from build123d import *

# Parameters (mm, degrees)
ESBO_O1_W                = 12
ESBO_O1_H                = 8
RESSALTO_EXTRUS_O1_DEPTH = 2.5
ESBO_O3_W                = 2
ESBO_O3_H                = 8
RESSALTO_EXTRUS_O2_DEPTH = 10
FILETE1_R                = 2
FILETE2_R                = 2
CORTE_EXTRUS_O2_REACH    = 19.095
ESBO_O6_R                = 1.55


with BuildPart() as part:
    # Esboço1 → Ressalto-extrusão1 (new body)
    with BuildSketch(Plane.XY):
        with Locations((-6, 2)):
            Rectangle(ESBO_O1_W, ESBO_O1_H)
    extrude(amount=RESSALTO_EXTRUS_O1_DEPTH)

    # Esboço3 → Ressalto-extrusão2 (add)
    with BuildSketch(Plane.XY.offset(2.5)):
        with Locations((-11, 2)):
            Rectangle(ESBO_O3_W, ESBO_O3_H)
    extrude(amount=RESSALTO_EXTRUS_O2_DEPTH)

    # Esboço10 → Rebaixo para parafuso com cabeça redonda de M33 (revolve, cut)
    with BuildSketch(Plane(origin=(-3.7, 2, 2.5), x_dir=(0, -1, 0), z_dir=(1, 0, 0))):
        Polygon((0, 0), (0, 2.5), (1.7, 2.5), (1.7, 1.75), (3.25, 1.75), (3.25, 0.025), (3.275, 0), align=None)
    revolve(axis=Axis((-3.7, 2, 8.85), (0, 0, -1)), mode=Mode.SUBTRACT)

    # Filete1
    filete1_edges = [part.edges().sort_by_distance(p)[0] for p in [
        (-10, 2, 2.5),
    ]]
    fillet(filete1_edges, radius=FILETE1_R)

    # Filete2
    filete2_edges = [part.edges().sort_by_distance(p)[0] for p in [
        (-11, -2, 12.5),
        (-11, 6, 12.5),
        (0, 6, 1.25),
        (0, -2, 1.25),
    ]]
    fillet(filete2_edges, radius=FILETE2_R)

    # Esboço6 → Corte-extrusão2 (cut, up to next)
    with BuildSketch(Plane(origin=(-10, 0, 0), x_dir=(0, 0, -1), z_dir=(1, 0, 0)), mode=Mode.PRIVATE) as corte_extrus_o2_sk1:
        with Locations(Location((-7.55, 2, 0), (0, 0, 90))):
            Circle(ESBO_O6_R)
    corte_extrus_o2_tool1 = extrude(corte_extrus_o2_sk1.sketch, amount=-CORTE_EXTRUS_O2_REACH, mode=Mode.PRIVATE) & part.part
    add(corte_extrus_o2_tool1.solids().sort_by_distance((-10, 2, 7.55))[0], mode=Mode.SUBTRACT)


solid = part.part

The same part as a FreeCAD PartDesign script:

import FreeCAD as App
import Part
import Sketcher
Q = App.Units.Quantity


def edges_at(feature, points):
    """Names of the edges that pass closest to the given points."""
    edges = feature.Shape.Edges
    near = lambda p: min(range(len(edges)), key=lambda i: edges[i].distToShape(Part.Vertex(*p))[0])
    return sorted({f"Edge{near(p) + 1}" for p in points})

doc = App.newDocument("Part")
body = doc.addObject("PartDesign::Body", "Body")

# Sketch on XY plane
sketch1 = body.newObject("Sketcher::SketchObject", "Sketch")
sketch1.AttachmentSupport = (doc.getObject("XY_Plane"), [""])
sketch1.MapMode = "FlatFace"
sketch1.addGeometry(Part.LineSegment(App.Vector(-12, 6, 0), App.Vector(-12, -2, 0)), False)
sketch1.addGeometry(Part.LineSegment(App.Vector(-12, -2, 0), App.Vector(0, -2, 0)), False)
sketch1.addGeometry(Part.LineSegment(App.Vector(0, -2, 0), App.Vector(0, 6, 0)), False)
sketch1.addGeometry(Part.LineSegment(App.Vector(0, 6, 0), App.Vector(-12, 6, 0)), False)
sketch1.addConstraint(Sketcher.Constraint("Coincident", 0, 2, 1, 1))
sketch1.addConstraint(Sketcher.Constraint("Coincident", 1, 2, 2, 1))
sketch1.addConstraint(Sketcher.Constraint("Coincident", 2, 2, 3, 1))
sketch1.addConstraint(Sketcher.Constraint("Coincident", 3, 2, 0, 1))
sketch1.addConstraint(Sketcher.Constraint("Vertical", 0))
sketch1.addConstraint(Sketcher.Constraint("Horizontal", 1))
sketch1.addConstraint(Sketcher.Constraint("Vertical", 2))
sketch1.addConstraint(Sketcher.Constraint("Horizontal", 3))
sketch1.addConstraint(Sketcher.Constraint("PointOnObject", 1, 2, -2))
sketch1.addConstraint(Sketcher.Constraint("DistanceX", 1, 1, 1, 2, Q("12 mm")))
sketch1.addConstraint(Sketcher.Constraint("DistanceY", 0, 2, 0, 1, Q("8 mm")))
sketch1.addConstraint(Sketcher.Constraint("DistanceY", 0, 2, -1, 1, Q("2 mm")))
pad1 = body.newObject("PartDesign::Pad", "Pad")
pad1.Profile = sketch1
pad1.Length = 2.5

# Sketch on XY plane
sketch2 = body.newObject("Sketcher::SketchObject", "Sketch001")
sketch2.AttachmentSupport = (doc.getObject("XY_Plane"), [""])
sketch2.MapMode = "FlatFace"
sketch2.AttachmentOffset = App.Placement(App.Vector(0, 0, 2.5), App.Rotation())
sketch2.addGeometry(Part.LineSegment(App.Vector(-12, 6, 0), App.Vector(-12, -2, 0)), False)
sketch2.addGeometry(Part.LineSegment(App.Vector(-12, -2, 0), App.Vector(-10, -2, 0)), False)
sketch2.addGeometry(Part.LineSegment(App.Vector(-10, -2, 0), App.Vector(-10, 6, 0)), False)
sketch2.addGeometry(Part.LineSegment(App.Vector(-10, 6, 0), App.Vector(-12, 6, 0)), False)
sketch2.addConstraint(Sketcher.Constraint("Coincident", 0, 2, 1, 1))
sketch2.addConstraint(Sketcher.Constraint("Coincident", 1, 2, 2, 1))
sketch2.addConstraint(Sketcher.Constraint("Coincident", 2, 2, 3, 1))
sketch2.addConstraint(Sketcher.Constraint("Coincident", 3, 2, 0, 1))
sketch2.addConstraint(Sketcher.Constraint("Vertical", 0))
sketch2.addConstraint(Sketcher.Constraint("Horizontal", 1))
sketch2.addConstraint(Sketcher.Constraint("Vertical", 2))
sketch2.addConstraint(Sketcher.Constraint("Horizontal", 3))
sketch2.addConstraint(Sketcher.Constraint("DistanceX", 1, 1, 1, 2, Q("2 mm")))
sketch2.addConstraint(Sketcher.Constraint("DistanceY", 0, 2, 0, 1, Q("8 mm")))
sketch2.addConstraint(Sketcher.Constraint("DistanceX", 0, 2, -1, 1, Q("12 mm")))
sketch2.addConstraint(Sketcher.Constraint("DistanceY", 0, 2, -1, 1, Q("2 mm")))
pad2 = body.newObject("PartDesign::Pad", "Pad001")
pad2.Profile = sketch2
pad2.Length = 10

# Sketch on YZ plane
sketch3 = body.newObject("Sketcher::SketchObject", "Sketch002")
sketch3.AttachmentSupport = (doc.getObject("YZ_Plane"), [""])
sketch3.MapMode = "FlatFace"
sketch3.AttachmentOffset = App.Placement(App.Vector(0, 0, -3.7), App.Rotation())
sketch3.addGeometry(Part.LineSegment(App.Vector(2, 0, 0), App.Vector(2, 2.5, 0)), False)
sketch3.addGeometry(Part.LineSegment(App.Vector(2, 2.5, 0), App.Vector(-1.275, 2.5, 0)), False)
sketch3.addGeometry(Part.LineSegment(App.Vector(-1.275, 2.5, 0), App.Vector(-1.25, 2.475, 0)), False)
sketch3.addGeometry(Part.LineSegment(App.Vector(-1.25, 2.475, 0), App.Vector(-1.25, 0.75, 0)), False)
sketch3.addGeometry(Part.LineSegment(App.Vector(-1.25, 0.75, 0), App.Vector(0.3, 0.75, 0)), False)
sketch3.addGeometry(Part.LineSegment(App.Vector(0.3, 0.75, 0), App.Vector(0.3, 0, 0)), False)
sketch3.addGeometry(Part.LineSegment(App.Vector(0.3, 0, 0), App.Vector(2, 0, 0)), False)
sketch3.addGeometry(Part.LineSegment(App.Vector(2, 2.5, 0), App.Vector(2, 0, 0)), True)  # axis
sketch3.addConstraint(Sketcher.Constraint("Coincident", 0, 2, 1, 1))
sketch3.addConstraint(Sketcher.Constraint("Coincident", 1, 2, 2, 1))
sketch3.addConstraint(Sketcher.Constraint("Coincident", 2, 2, 3, 1))
sketch3.addConstraint(Sketcher.Constraint("Coincident", 3, 2, 4, 1))
sketch3.addConstraint(Sketcher.Constraint("Coincident", 4, 2, 5, 1))
sketch3.addConstraint(Sketcher.Constraint("Coincident", 5, 2, 6, 1))
sketch3.addConstraint(Sketcher.Constraint("Coincident", 6, 2, 0, 1))
sketch3.addConstraint(Sketcher.Constraint("Vertical", 0))
sketch3.addConstraint(Sketcher.Constraint("Horizontal", 1))
sketch3.addConstraint(Sketcher.Constraint("Vertical", 3))
sketch3.addConstraint(Sketcher.Constraint("Horizontal", 4))
sketch3.addConstraint(Sketcher.Constraint("Vertical", 5))
sketch3.addConstraint(Sketcher.Constraint("Horizontal", 6))
sketch3.addConstraint(Sketcher.Constraint("Vertical", 7))
sketch3.addConstraint(Sketcher.Constraint("Coincident", 7, 1, 0, 2))
sketch3.addConstraint(Sketcher.Constraint("PointOnObject", 5, 2, -1))
sketch3.addConstraint(Sketcher.Constraint("PointOnObject", 7, 2, -1))
sketch3.addConstraint(Sketcher.Constraint("Angle", 2, Q("-45 deg")))
sketch3.addConstraint(Sketcher.Constraint("DistanceX", 6, 1, 6, 2, Q("1.7 mm")))
sketch3.addConstraint(Sketcher.Constraint("DistanceY", 0, 1, 0, 2, Q("2.5 mm")))
sketch3.addConstraint(Sketcher.Constraint("DistanceX", -1, 1, 0, 2, Q("2 mm")))
sketch3.addConstraint(Sketcher.Constraint("DistanceX", 4, 1, 4, 2, Q("1.55 mm")))
sketch3.addConstraint(Sketcher.Constraint("DistanceY", 5, 2, 5, 1, Q("0.75 mm")))
sketch3.addConstraint(Sketcher.Constraint("DistanceX", 1, 2, 1, 1, Q("3.275 mm")))
groove = body.newObject("PartDesign::Groove", "Groove")
groove.Profile = sketch3
groove.ReferenceAxis = (sketch3, ["Axis0"])
groove.Angle = 360
doc.recompute()

fillet = body.newObject("PartDesign::Fillet", "Fillet")
fillet.Base = (groove, edges_at(groove, [(-10, 2, 2.5)]))
fillet.Radius = 2
doc.recompute()

fillet2 = body.newObject("PartDesign::Fillet", "Fillet001")
fillet2.Base = (fillet, edges_at(fillet, [
    (-11, -2, 12.5),
    (-11, 6, 12.5),
    (0, 6, 1.25),
    (0, -2, 1.25),
]))
fillet2.Radius = 2

# Sketch on YZ plane
sketch4 = body.newObject("Sketcher::SketchObject", "Sketch003")
sketch4.AttachmentSupport = (doc.getObject("YZ_Plane"), [""])
sketch4.MapMode = "FlatFace"
sketch4.AttachmentOffset = App.Placement(App.Vector(0, 0, -10), App.Rotation())
sketch4.addGeometry(Part.Circle(App.Vector(2, 7.5, 0), App.Vector(0, 0, 1), 1.6), False)
sketch4.addConstraint(Sketcher.Constraint("Diameter", 0, Q("3.1 mm")))
sketch4.addConstraint(Sketcher.Constraint("DistanceX", -1, 1, 0, 3, Q("2 mm")))
sketch4.addConstraint(Sketcher.Constraint("DistanceY", -1, 1, 0, 3, Q("7.55 mm")))
pocket1 = body.newObject("PartDesign::Pocket", "Pocket")
pocket1.Profile = sketch4
pocket1.Type = "UpToFirst"

doc.recompute()
